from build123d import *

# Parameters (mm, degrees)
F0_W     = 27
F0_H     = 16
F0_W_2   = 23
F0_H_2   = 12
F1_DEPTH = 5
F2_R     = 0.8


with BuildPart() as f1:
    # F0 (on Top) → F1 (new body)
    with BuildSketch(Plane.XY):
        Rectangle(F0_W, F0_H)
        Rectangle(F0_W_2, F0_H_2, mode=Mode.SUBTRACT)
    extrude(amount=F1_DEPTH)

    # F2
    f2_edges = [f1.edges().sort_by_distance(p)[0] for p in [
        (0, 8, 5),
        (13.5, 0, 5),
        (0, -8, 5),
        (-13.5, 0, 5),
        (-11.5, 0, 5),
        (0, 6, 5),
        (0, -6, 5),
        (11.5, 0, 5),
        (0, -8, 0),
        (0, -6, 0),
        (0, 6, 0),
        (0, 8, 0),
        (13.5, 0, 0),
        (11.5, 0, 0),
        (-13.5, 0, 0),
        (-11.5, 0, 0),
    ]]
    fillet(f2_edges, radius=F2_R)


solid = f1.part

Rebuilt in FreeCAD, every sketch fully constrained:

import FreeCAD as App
import Part
import Sketcher

V = App.Vector


def edges_at(feature, points):
    """Names of the edges that pass closest to the given points."""
    edges = feature.Shape.Edges
    near = lambda p: min(range(len(edges)), key=lambda i: edges[i].distToShape(Part.Vertex(*p))[0])
    return sorted({f"Edge{near(p) + 1}" for p in points})


def add_polygon(sketch, points):
    """Adds a closed chain of lines whose ends are joined by coincident constraints."""
    first, n = sketch.GeometryCount, len(points)
    for a, b in zip(points, points[1:] + points[:1]):
        sketch.addGeometry(Part.LineSegment(App.Vector(*a, 0), App.Vector(*b, 0)), False)
    for i in range(n):
        sketch.addConstraint(Sketcher.Constraint("Coincident", first + i, 2, first + (i + 1) % n, 1))

doc = App.newDocument("Part")
body = doc.addObject("PartDesign::Body", "Body")

# Sketch on XY plane
sketch1 = doc.addObject("Sketcher::SketchObject", "Sketch")
body.addObject(sketch1)
sketch1.AttachmentSupport = (doc.XY_Plane, [""])
sketch1.MapMode = "FlatFace"
add_polygon(sketch1, [(-13.5, 8), (-13.5, -8), (13.5, -8), (13.5, 8)])  # lines 0-3
add_polygon(sketch1, [(11.5, -6), (-11.5, -6), (-11.5, 6), (11.5, 6)])  # lines 4-7
sketch1.addConstraint([
    Sketcher.Constraint("Vertical", 0),
    Sketcher.Constraint("Horizontal", 1),
    Sketcher.Constraint("Vertical", 2),
    Sketcher.Constraint("Horizontal", 3),
    Sketcher.Constraint("Horizontal", 4),
    Sketcher.Constraint("Vertical", 5),
    Sketcher.Constraint("Horizontal", 6),
    Sketcher.Constraint("Vertical", 7),
    Sketcher.Constraint("Symmetric", 0, 2, 2, 2, -1, 1),
    Sketcher.Constraint("Symmetric", 4, 2, 6, 2, -1, 1),
    Sketcher.Constraint("DistanceX", 1, 1, 1, 2, 27.0),
    Sketcher.Constraint("DistanceX", 4, 2, 4, 1, 23.0),
    Sketcher.Constraint("DistanceY", 0, 2, 0, 1, 16.0),
    Sketcher.Constraint("DistanceY", 5, 1, 5, 2, 12.0),
])
pad1 = doc.addObject("PartDesign::Pad", "Pad")
body.addObject(pad1)
pad1.Profile = sketch1
pad1.Length = 5
doc.recompute()

fillet = doc.addObject("PartDesign::Fillet", "Fillet")
body.addObject(fillet)
fillet.Base = (pad1, edges_at(pad1, [
    (0, 8, 5),
    (13.5, 0, 5),
    (0, -8, 5),
    (-13.5, 0, 5),
    (-11.5, 0, 5),
    (0, 6, 5),
    (0, -6, 5),
    (11.5, 0, 5),
    (0, -8, 0),
    (0, -6, 0),
    (0, 6, 0),
    (0, 8, 0),
    (13.5, 0, 0),
    (11.5, 0, 0),
    (-13.5, 0, 0),
    (-11.5, 0, 0),
]))
fillet.Radius = 0.8

doc.recompute()
